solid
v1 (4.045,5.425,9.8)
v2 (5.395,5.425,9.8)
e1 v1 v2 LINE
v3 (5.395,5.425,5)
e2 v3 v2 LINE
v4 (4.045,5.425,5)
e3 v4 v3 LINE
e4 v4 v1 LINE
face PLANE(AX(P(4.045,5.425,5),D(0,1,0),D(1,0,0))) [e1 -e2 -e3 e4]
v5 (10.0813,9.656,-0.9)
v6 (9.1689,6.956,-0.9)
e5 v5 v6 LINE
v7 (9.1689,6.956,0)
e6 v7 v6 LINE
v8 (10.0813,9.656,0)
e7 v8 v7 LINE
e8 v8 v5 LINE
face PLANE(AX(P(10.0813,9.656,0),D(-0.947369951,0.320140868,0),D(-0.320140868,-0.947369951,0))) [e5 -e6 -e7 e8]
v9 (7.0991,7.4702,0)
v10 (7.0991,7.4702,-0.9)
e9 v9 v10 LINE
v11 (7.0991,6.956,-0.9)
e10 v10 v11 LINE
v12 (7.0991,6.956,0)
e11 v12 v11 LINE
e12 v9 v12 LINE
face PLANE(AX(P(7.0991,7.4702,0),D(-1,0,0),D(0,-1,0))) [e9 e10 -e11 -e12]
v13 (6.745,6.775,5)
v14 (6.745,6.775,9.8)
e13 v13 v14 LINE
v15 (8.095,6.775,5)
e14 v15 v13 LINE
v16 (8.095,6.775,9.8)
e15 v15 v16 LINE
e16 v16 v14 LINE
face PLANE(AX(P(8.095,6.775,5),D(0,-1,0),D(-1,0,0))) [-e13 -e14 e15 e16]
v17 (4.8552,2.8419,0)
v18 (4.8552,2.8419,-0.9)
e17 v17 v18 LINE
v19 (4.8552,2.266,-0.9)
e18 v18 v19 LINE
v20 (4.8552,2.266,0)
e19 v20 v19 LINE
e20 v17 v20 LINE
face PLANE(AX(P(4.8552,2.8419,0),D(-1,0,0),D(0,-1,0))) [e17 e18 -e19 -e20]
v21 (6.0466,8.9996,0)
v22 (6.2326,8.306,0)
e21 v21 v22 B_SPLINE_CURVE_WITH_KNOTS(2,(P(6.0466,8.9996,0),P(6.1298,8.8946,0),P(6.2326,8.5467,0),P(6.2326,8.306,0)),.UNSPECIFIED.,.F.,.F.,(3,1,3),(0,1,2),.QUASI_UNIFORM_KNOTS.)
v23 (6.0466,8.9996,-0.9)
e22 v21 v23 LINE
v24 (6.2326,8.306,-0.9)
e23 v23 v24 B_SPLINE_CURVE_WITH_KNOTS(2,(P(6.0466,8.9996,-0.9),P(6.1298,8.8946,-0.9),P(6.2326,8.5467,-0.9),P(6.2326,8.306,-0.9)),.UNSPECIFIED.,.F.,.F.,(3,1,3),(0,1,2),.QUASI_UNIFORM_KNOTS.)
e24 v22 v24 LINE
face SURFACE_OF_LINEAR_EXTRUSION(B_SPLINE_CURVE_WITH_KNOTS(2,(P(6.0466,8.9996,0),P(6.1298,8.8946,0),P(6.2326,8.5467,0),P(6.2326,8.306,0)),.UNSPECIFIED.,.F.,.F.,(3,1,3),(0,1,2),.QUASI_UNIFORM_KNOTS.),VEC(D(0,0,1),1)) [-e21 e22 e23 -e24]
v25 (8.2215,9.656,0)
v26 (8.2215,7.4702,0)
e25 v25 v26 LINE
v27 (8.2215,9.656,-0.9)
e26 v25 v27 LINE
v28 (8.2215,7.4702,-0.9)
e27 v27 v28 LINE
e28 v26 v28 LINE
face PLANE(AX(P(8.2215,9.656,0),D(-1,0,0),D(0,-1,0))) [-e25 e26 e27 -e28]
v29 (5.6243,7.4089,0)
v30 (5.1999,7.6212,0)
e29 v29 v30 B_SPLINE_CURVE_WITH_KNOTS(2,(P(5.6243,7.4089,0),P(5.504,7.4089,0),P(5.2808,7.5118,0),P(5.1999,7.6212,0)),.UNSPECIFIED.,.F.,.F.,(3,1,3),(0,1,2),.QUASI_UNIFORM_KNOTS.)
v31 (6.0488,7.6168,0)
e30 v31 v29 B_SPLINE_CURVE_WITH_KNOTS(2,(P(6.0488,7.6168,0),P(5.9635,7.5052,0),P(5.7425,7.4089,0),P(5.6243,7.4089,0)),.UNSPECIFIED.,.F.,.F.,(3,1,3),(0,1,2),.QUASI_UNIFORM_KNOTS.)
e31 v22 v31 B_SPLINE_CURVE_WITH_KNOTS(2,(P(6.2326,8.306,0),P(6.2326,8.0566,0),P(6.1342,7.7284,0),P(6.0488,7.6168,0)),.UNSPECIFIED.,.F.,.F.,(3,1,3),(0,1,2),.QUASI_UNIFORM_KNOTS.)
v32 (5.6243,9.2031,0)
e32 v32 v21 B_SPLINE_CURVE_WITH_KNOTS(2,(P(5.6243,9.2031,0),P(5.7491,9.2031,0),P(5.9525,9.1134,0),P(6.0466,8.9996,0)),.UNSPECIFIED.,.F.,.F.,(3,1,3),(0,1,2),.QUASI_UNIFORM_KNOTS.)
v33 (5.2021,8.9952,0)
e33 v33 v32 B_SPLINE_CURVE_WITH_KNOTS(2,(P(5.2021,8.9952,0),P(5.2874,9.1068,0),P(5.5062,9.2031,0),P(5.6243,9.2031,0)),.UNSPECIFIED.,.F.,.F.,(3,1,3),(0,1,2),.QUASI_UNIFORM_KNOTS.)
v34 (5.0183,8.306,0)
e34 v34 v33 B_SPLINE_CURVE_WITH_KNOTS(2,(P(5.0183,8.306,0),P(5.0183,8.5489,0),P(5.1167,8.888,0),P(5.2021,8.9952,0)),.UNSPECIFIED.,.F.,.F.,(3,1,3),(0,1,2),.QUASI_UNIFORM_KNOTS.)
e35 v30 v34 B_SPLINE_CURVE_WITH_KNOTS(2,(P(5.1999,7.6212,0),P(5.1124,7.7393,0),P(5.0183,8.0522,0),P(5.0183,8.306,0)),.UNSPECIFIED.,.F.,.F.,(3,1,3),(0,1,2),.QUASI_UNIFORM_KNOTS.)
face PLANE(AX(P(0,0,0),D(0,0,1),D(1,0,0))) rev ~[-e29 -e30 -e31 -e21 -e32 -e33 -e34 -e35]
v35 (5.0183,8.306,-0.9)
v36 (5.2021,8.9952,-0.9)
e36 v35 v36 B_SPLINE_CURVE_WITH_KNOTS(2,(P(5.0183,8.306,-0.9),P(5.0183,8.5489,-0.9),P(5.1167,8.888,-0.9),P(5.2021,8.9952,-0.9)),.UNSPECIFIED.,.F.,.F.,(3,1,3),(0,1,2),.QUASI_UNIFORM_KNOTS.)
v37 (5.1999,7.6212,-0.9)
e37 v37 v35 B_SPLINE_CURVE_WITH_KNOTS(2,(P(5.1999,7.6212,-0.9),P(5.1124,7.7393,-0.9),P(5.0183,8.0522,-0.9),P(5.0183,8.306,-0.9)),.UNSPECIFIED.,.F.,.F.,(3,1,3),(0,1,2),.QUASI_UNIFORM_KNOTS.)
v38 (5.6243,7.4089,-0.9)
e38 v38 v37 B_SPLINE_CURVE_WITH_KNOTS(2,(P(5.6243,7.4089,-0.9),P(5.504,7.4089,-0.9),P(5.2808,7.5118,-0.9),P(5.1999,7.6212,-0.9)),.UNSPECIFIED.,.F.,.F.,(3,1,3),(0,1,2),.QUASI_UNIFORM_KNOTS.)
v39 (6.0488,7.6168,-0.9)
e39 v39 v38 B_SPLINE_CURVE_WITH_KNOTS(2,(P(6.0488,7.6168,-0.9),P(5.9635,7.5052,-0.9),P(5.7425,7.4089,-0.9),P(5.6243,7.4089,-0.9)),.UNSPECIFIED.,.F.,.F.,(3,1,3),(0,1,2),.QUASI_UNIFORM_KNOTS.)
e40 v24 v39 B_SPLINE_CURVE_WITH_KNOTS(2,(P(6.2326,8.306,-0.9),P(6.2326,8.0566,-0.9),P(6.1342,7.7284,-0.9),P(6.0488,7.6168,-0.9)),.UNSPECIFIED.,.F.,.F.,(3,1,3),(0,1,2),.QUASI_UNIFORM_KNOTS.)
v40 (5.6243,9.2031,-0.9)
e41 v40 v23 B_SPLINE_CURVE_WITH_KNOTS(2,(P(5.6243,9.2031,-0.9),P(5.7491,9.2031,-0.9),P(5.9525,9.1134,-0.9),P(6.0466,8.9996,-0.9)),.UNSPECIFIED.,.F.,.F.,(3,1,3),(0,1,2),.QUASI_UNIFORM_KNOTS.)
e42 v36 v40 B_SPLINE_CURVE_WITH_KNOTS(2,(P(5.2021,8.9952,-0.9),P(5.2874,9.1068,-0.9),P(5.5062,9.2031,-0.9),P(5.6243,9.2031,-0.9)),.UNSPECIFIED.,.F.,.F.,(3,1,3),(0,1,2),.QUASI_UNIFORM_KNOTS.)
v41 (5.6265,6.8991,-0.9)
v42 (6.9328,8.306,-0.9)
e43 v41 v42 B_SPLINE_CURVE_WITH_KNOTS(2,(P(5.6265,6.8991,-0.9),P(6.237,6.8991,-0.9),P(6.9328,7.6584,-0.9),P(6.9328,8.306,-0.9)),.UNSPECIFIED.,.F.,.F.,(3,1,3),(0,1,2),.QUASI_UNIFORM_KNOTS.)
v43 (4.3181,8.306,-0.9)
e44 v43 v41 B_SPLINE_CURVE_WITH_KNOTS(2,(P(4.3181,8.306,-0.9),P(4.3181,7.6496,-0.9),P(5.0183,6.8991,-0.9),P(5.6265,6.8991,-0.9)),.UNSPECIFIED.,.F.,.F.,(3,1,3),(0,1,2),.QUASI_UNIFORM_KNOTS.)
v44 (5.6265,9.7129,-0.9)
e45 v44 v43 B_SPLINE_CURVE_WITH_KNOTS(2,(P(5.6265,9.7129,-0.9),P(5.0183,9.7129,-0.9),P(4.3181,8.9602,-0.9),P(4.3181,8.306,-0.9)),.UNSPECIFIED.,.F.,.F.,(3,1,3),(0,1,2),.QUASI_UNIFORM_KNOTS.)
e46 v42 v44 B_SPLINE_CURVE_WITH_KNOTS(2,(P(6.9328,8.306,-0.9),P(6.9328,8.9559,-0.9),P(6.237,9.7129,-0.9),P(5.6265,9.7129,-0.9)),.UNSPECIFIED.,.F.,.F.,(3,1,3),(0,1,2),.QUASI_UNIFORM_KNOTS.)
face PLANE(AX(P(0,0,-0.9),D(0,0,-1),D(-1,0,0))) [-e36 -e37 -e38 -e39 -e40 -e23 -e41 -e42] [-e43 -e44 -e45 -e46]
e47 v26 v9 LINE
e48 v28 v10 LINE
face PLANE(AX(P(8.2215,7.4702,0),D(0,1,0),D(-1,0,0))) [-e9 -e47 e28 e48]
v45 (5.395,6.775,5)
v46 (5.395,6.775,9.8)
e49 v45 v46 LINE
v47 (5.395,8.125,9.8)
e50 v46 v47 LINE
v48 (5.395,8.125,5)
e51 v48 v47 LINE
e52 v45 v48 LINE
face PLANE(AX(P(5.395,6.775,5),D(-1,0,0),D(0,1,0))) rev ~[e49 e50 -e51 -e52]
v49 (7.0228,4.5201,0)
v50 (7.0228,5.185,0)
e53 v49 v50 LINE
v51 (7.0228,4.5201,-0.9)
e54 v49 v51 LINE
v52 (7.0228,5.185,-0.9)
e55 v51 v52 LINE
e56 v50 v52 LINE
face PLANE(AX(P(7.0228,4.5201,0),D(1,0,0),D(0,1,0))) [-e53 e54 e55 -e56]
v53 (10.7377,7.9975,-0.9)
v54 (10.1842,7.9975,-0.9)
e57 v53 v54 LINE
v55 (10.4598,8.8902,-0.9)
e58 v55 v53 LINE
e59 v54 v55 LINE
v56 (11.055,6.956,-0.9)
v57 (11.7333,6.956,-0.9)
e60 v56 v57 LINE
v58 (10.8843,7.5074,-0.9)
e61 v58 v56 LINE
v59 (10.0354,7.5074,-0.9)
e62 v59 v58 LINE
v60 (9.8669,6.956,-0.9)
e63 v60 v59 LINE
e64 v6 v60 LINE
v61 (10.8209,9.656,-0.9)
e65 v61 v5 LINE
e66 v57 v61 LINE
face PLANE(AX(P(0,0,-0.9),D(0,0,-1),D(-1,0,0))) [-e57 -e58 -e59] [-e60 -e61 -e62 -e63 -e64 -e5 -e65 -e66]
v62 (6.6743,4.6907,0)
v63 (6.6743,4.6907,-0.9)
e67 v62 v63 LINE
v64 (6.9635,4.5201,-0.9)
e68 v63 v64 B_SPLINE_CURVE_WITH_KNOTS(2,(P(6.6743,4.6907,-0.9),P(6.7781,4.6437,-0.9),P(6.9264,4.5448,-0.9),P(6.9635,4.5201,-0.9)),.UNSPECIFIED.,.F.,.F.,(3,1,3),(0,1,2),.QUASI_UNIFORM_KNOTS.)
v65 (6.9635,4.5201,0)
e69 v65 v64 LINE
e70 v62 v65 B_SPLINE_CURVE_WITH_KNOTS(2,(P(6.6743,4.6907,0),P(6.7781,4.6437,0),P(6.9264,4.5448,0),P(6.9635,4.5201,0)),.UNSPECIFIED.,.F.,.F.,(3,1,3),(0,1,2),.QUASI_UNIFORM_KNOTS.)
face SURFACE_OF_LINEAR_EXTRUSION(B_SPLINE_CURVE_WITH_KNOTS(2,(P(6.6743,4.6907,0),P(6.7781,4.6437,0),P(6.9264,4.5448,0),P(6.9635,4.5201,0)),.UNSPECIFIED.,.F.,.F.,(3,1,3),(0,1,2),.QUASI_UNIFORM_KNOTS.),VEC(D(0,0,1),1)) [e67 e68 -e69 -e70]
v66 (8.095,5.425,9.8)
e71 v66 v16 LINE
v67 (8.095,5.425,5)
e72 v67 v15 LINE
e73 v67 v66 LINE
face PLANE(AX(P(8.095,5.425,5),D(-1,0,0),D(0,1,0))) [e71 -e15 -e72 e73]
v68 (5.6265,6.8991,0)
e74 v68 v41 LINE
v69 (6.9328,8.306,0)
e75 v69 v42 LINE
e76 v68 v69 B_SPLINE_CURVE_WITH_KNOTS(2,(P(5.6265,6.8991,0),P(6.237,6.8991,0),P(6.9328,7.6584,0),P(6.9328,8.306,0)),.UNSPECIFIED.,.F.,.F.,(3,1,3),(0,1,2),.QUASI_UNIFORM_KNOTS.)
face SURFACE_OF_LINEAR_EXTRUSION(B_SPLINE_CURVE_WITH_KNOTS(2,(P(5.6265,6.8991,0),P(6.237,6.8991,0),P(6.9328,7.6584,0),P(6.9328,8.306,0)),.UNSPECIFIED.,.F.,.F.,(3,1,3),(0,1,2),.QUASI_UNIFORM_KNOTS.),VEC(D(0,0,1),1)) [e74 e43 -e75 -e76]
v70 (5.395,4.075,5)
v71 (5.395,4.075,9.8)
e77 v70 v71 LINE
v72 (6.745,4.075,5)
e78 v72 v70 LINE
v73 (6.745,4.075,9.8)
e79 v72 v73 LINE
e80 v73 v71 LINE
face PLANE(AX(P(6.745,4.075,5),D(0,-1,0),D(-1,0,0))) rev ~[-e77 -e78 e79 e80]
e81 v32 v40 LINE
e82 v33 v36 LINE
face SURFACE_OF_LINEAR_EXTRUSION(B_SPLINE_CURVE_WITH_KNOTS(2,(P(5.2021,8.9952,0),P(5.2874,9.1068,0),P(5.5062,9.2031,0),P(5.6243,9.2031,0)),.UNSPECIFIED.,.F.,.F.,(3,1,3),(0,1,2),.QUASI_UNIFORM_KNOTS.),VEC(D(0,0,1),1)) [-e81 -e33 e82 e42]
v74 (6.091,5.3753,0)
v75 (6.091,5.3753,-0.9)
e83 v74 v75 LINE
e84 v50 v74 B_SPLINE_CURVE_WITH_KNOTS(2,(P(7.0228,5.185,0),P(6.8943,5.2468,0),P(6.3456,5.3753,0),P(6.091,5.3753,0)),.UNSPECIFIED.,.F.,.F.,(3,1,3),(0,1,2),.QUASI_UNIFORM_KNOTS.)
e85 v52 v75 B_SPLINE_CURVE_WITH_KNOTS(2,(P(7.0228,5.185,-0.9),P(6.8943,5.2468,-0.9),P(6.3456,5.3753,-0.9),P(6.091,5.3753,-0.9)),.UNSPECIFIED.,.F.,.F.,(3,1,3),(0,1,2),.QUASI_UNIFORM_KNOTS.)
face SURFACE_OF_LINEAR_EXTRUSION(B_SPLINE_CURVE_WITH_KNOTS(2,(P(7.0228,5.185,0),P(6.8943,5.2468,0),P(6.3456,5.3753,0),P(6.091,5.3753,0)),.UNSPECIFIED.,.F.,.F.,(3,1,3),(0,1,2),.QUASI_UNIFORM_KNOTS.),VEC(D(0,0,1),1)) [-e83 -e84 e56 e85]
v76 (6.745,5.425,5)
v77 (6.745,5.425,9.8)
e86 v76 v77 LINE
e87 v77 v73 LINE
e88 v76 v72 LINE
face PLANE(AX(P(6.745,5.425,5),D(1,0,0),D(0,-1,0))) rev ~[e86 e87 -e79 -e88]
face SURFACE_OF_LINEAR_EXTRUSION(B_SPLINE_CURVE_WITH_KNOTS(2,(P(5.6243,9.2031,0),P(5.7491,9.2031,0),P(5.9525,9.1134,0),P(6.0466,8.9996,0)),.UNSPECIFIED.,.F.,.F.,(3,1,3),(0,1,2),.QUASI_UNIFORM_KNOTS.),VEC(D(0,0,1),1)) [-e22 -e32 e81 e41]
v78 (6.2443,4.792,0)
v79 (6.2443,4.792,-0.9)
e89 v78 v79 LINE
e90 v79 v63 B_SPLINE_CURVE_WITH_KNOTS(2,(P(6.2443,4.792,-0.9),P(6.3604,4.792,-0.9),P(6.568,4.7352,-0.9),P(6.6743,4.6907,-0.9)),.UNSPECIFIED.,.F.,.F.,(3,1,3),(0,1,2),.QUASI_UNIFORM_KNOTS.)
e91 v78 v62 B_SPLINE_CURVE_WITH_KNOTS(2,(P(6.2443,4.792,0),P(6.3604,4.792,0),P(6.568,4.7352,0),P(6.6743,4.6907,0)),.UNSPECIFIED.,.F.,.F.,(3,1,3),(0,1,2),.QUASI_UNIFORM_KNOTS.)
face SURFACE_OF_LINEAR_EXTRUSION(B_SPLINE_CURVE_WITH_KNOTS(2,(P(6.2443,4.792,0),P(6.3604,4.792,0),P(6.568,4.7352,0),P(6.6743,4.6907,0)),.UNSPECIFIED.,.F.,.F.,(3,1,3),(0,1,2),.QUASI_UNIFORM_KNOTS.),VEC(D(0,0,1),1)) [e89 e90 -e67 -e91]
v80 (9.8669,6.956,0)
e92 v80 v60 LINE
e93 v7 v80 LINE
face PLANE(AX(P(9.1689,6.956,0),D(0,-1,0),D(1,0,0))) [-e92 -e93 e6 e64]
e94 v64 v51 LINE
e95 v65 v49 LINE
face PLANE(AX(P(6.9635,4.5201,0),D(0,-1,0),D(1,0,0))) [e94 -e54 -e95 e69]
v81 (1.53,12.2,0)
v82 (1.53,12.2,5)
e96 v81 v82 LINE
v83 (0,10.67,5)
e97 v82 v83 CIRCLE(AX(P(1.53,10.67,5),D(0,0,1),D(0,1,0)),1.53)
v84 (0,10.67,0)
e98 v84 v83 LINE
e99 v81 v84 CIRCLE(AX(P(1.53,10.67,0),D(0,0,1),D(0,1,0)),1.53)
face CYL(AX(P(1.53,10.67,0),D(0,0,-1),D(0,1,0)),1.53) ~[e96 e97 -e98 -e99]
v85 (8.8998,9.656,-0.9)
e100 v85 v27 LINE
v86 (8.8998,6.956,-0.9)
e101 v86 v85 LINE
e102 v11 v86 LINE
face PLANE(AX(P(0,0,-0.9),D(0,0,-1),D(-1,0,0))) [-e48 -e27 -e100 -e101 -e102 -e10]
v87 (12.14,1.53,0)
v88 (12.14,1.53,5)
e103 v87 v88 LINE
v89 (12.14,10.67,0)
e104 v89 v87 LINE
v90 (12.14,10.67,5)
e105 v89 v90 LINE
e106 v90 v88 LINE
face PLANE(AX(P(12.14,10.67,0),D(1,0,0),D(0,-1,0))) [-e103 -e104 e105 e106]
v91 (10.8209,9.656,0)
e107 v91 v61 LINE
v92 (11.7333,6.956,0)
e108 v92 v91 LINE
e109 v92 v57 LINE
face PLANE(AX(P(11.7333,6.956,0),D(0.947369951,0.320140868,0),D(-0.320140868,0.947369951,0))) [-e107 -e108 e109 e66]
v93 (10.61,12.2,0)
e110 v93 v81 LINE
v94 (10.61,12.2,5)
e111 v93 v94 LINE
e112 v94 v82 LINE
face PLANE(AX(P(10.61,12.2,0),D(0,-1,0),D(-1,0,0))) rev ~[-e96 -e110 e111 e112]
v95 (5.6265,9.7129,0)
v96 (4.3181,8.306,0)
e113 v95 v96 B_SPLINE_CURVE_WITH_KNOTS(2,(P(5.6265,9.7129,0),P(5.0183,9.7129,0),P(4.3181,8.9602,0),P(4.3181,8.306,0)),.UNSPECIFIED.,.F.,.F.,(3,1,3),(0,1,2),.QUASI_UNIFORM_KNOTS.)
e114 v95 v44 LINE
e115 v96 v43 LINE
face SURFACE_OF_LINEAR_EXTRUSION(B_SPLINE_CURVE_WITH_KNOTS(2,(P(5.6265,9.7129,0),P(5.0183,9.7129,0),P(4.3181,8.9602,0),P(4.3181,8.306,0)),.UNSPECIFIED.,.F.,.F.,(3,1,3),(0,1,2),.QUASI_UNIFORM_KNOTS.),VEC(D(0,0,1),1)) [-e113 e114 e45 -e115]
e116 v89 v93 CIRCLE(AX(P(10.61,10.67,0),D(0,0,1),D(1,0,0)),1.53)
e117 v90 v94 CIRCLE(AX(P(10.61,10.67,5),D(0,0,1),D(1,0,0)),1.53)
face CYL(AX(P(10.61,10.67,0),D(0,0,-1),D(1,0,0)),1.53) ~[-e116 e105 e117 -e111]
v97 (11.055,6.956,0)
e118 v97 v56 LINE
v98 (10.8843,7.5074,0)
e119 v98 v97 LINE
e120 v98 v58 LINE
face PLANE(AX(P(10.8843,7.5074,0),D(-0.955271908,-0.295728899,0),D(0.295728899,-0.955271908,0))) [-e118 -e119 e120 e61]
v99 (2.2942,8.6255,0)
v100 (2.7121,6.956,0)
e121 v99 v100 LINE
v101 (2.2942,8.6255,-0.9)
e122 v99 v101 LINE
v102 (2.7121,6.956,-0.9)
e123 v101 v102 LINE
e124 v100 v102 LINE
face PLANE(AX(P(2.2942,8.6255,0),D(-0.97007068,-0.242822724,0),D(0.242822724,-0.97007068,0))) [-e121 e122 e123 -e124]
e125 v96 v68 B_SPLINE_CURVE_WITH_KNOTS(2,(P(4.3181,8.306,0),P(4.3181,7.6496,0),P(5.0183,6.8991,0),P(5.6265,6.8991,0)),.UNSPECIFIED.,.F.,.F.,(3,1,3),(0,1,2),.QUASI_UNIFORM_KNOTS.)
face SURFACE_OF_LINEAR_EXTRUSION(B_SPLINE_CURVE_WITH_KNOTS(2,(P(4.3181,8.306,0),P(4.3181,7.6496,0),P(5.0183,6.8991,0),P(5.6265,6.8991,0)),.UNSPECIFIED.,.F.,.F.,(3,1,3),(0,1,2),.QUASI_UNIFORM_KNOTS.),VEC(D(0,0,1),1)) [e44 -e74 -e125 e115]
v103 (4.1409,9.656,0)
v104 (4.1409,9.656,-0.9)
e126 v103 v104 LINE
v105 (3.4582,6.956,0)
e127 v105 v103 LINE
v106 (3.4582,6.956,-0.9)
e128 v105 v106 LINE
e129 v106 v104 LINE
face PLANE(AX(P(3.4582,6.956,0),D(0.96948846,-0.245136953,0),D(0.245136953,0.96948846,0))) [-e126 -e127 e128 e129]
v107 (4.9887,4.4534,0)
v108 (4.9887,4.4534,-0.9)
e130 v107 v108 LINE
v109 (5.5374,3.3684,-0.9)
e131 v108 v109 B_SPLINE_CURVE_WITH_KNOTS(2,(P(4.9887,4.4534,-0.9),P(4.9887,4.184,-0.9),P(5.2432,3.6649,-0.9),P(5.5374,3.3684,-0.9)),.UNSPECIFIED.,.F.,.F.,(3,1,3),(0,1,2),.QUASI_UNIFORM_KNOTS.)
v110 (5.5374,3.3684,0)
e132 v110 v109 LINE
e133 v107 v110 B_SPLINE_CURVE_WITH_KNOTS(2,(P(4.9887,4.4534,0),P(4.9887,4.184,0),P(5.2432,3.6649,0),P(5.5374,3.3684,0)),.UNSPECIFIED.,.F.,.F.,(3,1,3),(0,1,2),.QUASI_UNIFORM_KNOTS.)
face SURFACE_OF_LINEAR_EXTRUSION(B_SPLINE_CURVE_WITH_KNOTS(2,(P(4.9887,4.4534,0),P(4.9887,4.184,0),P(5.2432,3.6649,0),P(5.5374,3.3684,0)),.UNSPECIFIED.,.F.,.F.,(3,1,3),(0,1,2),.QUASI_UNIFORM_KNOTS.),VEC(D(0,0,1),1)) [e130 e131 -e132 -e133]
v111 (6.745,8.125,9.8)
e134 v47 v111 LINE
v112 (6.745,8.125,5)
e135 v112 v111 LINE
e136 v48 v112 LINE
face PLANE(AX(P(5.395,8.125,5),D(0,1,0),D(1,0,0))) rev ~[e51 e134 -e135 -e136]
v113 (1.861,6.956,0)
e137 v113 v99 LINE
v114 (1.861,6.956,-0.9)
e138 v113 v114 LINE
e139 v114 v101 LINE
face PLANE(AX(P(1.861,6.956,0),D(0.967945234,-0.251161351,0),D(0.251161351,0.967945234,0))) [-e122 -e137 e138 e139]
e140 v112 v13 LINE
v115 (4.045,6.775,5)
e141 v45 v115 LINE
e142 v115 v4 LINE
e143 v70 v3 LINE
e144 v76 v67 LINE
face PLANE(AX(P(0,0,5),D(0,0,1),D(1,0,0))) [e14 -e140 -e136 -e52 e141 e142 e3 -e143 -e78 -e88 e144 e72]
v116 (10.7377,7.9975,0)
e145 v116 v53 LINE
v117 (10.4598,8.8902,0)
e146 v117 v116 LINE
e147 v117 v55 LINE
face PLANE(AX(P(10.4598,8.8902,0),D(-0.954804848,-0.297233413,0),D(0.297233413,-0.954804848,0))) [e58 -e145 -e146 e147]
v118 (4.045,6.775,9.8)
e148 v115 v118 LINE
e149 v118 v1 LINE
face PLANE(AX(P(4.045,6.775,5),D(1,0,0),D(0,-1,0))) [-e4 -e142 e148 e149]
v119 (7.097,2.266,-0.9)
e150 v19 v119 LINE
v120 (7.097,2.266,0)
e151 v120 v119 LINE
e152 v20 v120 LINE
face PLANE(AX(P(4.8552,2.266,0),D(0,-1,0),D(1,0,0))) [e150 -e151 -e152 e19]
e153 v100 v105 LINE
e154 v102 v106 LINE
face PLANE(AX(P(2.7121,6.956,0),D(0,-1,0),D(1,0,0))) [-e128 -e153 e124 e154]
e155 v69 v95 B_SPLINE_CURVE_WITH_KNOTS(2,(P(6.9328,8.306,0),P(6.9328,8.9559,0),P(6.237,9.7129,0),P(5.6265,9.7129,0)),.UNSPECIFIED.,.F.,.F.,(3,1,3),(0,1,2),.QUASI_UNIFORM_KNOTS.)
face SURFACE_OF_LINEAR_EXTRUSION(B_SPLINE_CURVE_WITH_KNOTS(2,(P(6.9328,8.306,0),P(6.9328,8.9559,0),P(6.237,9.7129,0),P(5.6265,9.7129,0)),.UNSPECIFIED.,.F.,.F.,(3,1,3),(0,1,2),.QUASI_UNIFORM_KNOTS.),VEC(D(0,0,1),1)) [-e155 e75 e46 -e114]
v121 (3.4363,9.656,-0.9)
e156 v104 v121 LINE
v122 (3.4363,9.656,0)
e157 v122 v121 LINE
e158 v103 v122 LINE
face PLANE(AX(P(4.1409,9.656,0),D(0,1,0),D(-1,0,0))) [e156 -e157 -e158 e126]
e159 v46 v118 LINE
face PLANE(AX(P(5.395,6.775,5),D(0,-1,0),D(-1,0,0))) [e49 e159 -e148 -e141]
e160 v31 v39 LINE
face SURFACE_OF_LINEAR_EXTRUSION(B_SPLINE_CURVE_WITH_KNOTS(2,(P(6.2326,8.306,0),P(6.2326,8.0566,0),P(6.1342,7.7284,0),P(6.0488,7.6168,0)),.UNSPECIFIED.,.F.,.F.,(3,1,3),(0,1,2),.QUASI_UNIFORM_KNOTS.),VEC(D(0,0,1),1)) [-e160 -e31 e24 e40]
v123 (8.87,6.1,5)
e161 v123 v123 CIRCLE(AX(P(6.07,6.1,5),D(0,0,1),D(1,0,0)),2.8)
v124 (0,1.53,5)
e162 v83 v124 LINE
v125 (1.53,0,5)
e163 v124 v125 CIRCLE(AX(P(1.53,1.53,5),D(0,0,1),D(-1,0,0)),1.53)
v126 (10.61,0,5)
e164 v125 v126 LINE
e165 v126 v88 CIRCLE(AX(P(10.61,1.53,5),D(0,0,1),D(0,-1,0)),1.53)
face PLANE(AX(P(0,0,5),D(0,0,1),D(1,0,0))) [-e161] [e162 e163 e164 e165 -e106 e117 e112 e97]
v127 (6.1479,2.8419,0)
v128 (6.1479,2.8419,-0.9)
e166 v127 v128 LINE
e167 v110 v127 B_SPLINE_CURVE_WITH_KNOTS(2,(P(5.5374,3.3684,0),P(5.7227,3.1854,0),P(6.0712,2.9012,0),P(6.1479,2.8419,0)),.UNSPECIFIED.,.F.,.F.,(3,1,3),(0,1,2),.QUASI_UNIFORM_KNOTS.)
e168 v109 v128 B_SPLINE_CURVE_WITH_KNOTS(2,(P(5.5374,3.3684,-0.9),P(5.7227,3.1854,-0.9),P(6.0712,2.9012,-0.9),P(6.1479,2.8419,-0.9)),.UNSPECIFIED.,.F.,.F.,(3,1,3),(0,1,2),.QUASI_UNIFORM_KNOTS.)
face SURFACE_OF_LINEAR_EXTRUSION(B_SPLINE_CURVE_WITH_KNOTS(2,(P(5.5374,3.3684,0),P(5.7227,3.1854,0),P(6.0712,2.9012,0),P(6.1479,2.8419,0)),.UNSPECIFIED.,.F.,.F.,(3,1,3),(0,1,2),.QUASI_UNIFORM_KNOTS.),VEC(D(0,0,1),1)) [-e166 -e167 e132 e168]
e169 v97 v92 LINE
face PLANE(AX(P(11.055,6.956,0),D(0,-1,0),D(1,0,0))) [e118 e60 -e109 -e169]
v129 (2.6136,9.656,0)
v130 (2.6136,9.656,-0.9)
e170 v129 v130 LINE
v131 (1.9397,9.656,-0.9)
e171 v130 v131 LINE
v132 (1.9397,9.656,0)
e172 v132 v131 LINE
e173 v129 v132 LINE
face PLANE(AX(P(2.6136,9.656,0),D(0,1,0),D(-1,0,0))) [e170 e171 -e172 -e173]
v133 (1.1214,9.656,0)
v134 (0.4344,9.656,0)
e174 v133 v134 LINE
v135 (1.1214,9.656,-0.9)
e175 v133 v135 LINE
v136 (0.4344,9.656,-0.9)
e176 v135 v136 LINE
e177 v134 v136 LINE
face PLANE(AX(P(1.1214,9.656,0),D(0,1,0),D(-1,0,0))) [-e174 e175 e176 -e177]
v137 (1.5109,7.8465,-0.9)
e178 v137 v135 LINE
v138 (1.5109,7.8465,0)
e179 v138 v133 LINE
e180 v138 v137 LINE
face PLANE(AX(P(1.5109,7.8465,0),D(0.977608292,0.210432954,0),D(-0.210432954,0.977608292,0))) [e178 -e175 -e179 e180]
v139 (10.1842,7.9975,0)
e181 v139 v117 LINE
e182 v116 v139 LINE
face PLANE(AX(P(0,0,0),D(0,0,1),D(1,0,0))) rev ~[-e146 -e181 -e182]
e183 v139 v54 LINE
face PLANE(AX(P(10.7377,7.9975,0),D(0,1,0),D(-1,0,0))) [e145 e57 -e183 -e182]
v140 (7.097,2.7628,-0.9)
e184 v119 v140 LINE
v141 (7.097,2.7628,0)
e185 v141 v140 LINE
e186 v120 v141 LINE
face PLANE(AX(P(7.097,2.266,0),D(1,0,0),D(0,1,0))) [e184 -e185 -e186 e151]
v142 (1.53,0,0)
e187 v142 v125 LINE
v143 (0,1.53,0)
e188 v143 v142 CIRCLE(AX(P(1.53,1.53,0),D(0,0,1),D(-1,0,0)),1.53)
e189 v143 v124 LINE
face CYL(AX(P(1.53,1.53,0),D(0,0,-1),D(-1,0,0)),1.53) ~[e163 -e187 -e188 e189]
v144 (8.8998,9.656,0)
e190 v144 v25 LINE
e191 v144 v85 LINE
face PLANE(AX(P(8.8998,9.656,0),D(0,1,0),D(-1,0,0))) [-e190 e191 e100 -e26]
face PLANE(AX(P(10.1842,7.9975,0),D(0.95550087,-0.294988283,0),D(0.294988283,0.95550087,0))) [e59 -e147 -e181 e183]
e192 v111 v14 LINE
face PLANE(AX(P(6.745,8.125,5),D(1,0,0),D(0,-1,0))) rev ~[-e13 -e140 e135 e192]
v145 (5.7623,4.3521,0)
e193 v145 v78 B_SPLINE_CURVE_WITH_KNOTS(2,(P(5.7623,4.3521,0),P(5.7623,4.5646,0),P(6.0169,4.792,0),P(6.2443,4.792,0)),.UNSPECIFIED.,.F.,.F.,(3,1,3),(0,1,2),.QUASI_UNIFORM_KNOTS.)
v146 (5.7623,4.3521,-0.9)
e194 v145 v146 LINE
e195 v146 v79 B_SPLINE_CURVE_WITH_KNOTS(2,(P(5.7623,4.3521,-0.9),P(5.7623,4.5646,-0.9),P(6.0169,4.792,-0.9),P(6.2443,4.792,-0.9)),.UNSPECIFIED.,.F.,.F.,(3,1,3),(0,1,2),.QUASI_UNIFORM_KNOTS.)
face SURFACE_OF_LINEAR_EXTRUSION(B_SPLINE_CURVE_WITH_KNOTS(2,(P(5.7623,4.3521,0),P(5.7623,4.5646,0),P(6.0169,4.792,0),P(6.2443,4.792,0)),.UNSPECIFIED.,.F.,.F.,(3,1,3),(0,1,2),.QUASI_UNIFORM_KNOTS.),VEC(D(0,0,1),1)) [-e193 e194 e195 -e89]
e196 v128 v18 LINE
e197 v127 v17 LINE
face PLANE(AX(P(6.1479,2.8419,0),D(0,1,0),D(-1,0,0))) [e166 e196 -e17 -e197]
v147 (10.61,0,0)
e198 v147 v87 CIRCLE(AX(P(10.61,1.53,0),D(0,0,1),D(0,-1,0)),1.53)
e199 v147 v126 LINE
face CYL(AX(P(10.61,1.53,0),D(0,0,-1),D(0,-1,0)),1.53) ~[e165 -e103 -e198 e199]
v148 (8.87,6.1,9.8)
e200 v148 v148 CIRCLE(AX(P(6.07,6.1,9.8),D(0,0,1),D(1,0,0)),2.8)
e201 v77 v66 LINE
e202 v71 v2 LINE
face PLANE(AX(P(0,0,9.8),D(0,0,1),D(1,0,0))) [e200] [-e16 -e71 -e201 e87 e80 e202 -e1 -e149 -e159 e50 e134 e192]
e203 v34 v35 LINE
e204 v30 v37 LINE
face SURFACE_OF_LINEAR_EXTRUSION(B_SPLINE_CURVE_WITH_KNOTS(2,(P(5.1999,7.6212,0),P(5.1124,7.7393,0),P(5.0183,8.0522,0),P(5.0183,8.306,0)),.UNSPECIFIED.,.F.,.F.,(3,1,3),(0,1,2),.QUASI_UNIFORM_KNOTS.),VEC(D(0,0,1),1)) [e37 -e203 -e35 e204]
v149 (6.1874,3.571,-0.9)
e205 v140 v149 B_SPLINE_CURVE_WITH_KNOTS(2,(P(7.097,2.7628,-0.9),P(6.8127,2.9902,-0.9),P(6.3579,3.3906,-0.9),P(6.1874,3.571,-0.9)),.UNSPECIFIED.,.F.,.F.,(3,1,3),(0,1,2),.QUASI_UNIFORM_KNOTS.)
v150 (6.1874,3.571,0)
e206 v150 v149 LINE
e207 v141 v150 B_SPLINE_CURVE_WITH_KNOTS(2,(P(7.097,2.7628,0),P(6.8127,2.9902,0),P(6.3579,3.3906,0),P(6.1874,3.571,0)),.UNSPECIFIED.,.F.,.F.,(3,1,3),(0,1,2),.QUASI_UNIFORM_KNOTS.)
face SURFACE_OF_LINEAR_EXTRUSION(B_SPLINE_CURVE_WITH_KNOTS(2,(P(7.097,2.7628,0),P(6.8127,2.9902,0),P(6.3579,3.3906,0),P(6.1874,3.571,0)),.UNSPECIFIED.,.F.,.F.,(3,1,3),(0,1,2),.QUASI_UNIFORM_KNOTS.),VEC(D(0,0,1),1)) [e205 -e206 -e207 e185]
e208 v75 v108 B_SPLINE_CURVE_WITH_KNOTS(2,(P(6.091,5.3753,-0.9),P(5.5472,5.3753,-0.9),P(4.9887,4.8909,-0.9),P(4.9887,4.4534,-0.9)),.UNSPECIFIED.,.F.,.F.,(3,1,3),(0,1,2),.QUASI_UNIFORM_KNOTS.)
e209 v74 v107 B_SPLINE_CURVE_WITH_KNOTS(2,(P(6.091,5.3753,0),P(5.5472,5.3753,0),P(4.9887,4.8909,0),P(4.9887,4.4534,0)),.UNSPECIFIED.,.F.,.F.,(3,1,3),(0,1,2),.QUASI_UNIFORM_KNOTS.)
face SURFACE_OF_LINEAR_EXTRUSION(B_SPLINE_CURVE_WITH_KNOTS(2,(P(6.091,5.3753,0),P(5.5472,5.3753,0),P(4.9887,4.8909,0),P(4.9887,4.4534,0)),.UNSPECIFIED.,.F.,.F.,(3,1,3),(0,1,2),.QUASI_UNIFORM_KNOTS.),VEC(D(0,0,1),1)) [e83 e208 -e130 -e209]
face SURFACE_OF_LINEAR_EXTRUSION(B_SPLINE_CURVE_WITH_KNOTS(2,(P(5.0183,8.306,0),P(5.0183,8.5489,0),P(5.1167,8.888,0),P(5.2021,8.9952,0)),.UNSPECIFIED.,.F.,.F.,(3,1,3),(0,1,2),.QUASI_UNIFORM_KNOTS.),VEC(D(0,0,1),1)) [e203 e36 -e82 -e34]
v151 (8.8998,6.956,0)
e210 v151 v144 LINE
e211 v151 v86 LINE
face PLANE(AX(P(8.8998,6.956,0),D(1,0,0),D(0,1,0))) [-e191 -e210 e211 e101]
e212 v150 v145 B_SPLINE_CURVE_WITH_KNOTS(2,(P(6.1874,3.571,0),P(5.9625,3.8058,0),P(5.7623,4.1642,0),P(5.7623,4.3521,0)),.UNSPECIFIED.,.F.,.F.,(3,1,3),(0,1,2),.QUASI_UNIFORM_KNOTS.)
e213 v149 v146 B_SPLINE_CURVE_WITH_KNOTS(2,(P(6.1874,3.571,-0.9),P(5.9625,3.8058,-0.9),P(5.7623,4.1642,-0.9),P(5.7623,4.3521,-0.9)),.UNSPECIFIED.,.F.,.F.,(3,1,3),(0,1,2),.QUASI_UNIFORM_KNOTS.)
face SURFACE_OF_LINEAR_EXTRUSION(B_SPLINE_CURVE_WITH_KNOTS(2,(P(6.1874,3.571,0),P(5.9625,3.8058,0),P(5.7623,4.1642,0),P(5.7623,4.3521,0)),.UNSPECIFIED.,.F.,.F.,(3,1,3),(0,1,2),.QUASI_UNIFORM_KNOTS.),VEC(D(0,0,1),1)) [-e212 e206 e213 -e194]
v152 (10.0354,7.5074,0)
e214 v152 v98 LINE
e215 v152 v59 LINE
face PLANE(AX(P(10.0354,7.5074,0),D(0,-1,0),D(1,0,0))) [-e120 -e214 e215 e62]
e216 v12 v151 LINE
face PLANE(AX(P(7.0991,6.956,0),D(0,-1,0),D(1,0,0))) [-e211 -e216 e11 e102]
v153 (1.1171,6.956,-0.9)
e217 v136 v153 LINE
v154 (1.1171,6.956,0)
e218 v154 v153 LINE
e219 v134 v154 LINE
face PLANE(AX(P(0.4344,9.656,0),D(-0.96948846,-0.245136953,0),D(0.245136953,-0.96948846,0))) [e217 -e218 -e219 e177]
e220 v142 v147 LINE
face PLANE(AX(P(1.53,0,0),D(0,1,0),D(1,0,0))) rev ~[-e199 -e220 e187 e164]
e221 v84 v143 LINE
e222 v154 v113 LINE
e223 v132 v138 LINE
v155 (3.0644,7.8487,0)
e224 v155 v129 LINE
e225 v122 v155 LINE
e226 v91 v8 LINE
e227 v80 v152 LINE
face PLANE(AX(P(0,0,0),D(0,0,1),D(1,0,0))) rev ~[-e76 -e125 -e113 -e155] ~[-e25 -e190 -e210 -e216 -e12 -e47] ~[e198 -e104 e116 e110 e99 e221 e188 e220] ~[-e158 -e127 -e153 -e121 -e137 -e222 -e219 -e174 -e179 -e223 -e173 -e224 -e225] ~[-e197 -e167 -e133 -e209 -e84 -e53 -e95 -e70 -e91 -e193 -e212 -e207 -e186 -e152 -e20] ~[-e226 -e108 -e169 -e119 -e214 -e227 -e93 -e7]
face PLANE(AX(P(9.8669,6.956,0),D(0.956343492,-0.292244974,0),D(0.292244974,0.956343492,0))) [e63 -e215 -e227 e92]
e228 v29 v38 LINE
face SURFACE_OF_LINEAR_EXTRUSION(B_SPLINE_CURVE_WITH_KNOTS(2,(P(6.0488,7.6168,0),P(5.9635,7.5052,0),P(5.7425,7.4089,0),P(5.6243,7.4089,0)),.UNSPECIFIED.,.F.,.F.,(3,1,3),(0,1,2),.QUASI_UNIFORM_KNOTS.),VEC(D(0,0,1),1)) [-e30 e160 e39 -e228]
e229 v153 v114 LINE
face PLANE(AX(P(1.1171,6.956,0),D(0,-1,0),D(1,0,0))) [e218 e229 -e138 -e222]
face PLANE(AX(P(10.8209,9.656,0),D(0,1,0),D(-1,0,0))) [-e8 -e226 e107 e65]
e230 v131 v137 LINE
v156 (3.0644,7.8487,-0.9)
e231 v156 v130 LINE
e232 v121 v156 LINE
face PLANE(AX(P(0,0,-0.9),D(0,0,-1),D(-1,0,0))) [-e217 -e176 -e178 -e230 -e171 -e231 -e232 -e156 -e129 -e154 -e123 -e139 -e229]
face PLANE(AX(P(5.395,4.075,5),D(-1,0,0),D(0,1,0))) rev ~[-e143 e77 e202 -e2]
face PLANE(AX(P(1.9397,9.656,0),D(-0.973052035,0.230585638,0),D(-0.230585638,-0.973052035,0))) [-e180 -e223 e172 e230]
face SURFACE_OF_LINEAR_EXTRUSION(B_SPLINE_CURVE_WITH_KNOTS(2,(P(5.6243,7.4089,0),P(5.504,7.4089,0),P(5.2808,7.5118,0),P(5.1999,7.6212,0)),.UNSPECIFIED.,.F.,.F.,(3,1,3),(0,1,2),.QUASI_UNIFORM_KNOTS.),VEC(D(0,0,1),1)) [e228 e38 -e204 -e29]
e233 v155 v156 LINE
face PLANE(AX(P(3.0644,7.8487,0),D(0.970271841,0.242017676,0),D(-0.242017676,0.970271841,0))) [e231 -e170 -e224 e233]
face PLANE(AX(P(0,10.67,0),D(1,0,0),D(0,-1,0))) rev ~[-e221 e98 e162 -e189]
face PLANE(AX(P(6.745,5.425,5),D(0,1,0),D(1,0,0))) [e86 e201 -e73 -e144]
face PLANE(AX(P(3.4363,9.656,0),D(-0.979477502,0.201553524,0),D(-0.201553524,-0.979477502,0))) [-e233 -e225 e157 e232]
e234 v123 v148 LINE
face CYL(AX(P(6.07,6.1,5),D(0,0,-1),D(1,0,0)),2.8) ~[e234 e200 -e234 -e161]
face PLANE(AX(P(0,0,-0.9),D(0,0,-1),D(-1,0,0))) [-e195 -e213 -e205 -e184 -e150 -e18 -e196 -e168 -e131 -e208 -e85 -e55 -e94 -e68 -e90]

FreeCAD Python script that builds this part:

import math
import FreeCAD as App
import Part
import Sketcher

V = App.Vector
Q = App.Units.Quantity

doc = App.newDocument("Part")
params = doc.addObject("Spreadsheet::Sheet", "Params")
for row, (alias, value) in enumerate([
    ("sketch1_radius", "1.53 mm"),
    ("sketch1_width", "9.08 mm"),
    ("sketch1_height", "9.14 mm"),
    ("pad1_length", "5 mm"),
    ("sketch2_diameter", "5.6 mm"),
    ("sketch2_width", "1.35 mm"),
    ("pad2_length", "4.8 mm"),
    ("sketch3_height", "2.7 mm"),
    ("sketch3_length", "2.85 mm"),
    ("pad3_length", "0.9 mm"),
], start=1):
    params.set(f"A{row}", alias)
    params.set(f"B{row}", "=" + value)
    params.setAlias(f"B{row}", alias)

body = doc.addObject("PartDesign::Body", "Body")

sketch1 = body.newObject("Sketcher::SketchObject", "Sketch")
sketch1.AttachmentSupport = (doc.getObject("XY_Plane"), [""])
sketch1.MapMode = "FlatFace"
sketch1.addGeometry([
    Part.ArcOfCircle(Part.Circle(V(10.6, 10.7, 0), V(0, 0, 1), 1.5), math.radians(0), math.radians(90)),
    Part.LineSegment(V(10.6, 12.2, 0), V(1.5, 12.2, 0)),
    Part.ArcOfCircle(Part.Circle(V(1.5, 10.7, 0), V(0, 0, 1), 1.5), math.radians(90), math.radians(180)),
    Part.LineSegment(V(0, 10.7, 0), V(0, 1.5, 0)),
    Part.ArcOfCircle(Part.Circle(V(1.5, 1.5, 0), V(0, 0, 1), 1.5), math.radians(180), math.radians(270)),
    Part.LineSegment(V(1.5, 0, 0), V(10.6, 0, 0)),
    Part.ArcOfCircle(Part.Circle(V(10.6, 1.5, 0), V(0, 0, 1), 1.5), math.radians(-90), math.radians(0)),
    Part.LineSegment(V(12.1, 1.5, 0), V(12.1, 10.7, 0)),
], False)
sketch1.addConstraint([
    Sketcher.Constraint("Tangent", 0, 2, 1, 1),
    Sketcher.Constraint("Tangent", 1, 2, 2, 1),
    Sketcher.Constraint("Tangent", 2, 2, 3, 1),
    Sketcher.Constraint("Tangent", 3, 2, 4, 1),
    Sketcher.Constraint("Tangent", 4, 2, 5, 1),
    Sketcher.Constraint("Tangent", 5, 2, 6, 1),
    Sketcher.Constraint("Tangent", 6, 2, 7, 1),
    Sketcher.Constraint("Tangent", 7, 2, 0, 1),
    Sketcher.Constraint("Horizontal", 1),
    Sketcher.Constraint("Vertical", 3),
    Sketcher.Constraint("Horizontal", 5),
    Sketcher.Constraint("Vertical", 7),
    Sketcher.Constraint("Equal", 0, 2),
    Sketcher.Constraint("Equal", 2, 4),
    Sketcher.Constraint("Equal", 4, 6),
    Sketcher.Constraint("PointOnObject", 2, 2, -2),
    Sketcher.Constraint("PointOnObject", 4, 2, -1),
    Sketcher.Constraint("Radius", 0, Q("1.53 mm")),
    Sketcher.Constraint("DistanceX", 1, 2, 1, 1, Q("9.08 mm")),
    Sketcher.Constraint("DistanceY", 3, 2, 3, 1, Q("9.14 mm")),
])
sketch1.setExpression("Constraints[17]", "Params.sketch1_radius")
sketch1.setExpression("Constraints[18]", "Params.sketch1_width")
sketch1.setExpression("Constraints[19]", "Params.sketch1_height")
pad1 = body.newObject("PartDesign::Pad", "Pad")
pad1.Profile = sketch1
pad1.setExpression("Length", "Params.pad1_length")

sketch2 = body.newObject("Sketcher::SketchObject", "Sketch001")
sketch2.AttachmentSupport = (doc.getObject("XY_Plane"), [""])
sketch2.MapMode = "FlatFace"
sketch2.AttachmentOffset = App.Placement(V(0, 0, 5), App.Rotation())
sketch2.addGeometry([
    Part.Circle(V(6.1, 6.1, 0), V(0, 0, 1), 2.8),
    Part.LineSegment(V(5.4, 6.8, 0), V(5.4, 8.1, 0)),
    Part.LineSegment(V(5.4, 8.1, 0), V(6.7, 8.1, 0)),
    Part.LineSegment(V(6.7, 8.1, 0), V(6.7, 6.8, 0)),
    Part.LineSegment(V(6.7, 6.8, 0), V(8.1, 6.8, 0)),
    Part.LineSegment(V(8.1, 6.8, 0), V(8.1, 5.4, 0)),
    Part.LineSegment(V(8.1, 5.4, 0), V(6.7, 5.4, 0)),
    Part.LineSegment(V(6.7, 5.4, 0), V(6.7, 4.1, 0)),
    Part.LineSegment(V(6.7, 4.1, 0), V(5.4, 4.1, 0)),
    Part.LineSegment(V(5.4, 4.1, 0), V(5.4, 5.4, 0)),
    Part.LineSegment(V(5.4, 5.4, 0), V(4, 5.4, 0)),
    Part.LineSegment(V(4, 5.4, 0), V(4, 6.8, 0)),
    Part.LineSegment(V(4, 6.8, 0), V(5.4, 6.8, 0)),
], False)
sketch2.addConstraint([
    Sketcher.Constraint("Coincident", 1, 2, 2, 1),
    Sketcher.Constraint("Coincident", 2, 2, 3, 1),
    Sketcher.Constraint("Coincident", 3, 2, 4, 1),
    Sketcher.Constraint("Coincident", 4, 2, 5, 1),
    Sketcher.Constraint("Coincident", 5, 2, 6, 1),
    Sketcher.Constraint("Coincident", 6, 2, 7, 1),
    Sketcher.Constraint("Coincident", 7, 2, 8, 1),
    Sketcher.Constraint("Coincident", 8, 2, 9, 1),
    Sketcher.Constraint("Coincident", 9, 2, 10, 1),
    Sketcher.Constraint("Coincident", 10, 2, 11, 1),
    Sketcher.Constraint("Coincident", 11, 2, 12, 1),
    Sketcher.Constraint("Coincident", 12, 2, 1, 1),
    Sketcher.Constraint("Vertical", 1),
    Sketcher.Constraint("Horizontal", 2),
    Sketcher.Constraint("Vertical", 3),
    Sketcher.Constraint("Horizontal", 4),
    Sketcher.Constraint("Vertical", 5),
    Sketcher.Constraint("Horizontal", 6),
    Sketcher.Constraint("Vertical", 7),
    Sketcher.Constraint("Horizontal", 8),
    Sketcher.Constraint("Vertical", 9),
    Sketcher.Constraint("Horizontal", 10),
    Sketcher.Constraint("Vertical", 11),
    Sketcher.Constraint("Horizontal", 12),
    Sketcher.Constraint("Horizontal", 6, 2, 9, 2),
    Sketcher.Constraint("Horizontal", 4, 2, 11, 2),
    Sketcher.Constraint("Vertical", 3, 2, 6, 2),
    Sketcher.Constraint("Vertical", 1, 2, 8, 2),
    Sketcher.Constraint("Equal", 2, 4),
    Sketcher.Constraint("Equal", 8, 10),
    Sketcher.Constraint("Equal", 12, 1),
    Sketcher.Constraint("Equal", 3, 5),
    Sketcher.Constraint("Equal", 5, 7),
    Sketcher.Constraint("Diameter", 0, Q("5.6 mm")),
    Sketcher.Constraint("DistanceX", 2, 1, 2, 2, Q("1.35 mm")),
    Sketcher.Constraint("DistanceY", -1, 1, 0, 3, Q("6.1 mm")),
    Sketcher.Constraint("DistanceX", -1, 1, 0, 3, Q("6.07 mm")),
    Sketcher.Constraint("DistanceX", -1, 1, 1, 2, Q("5.395 mm")),
    Sketcher.Constraint("DistanceY", -1, 1, 1, 2, Q("8.125 mm")),
])
sketch2.setExpression("Constraints[33]", "Params.sketch2_diameter")
sketch2.setExpression("Constraints[34]", "Params.sketch2_width")
pad2 = body.newObject("PartDesign::Pad", "Pad001")
pad2.Profile = sketch2
pad2.setExpression("Length", "Params.pad2_length")

sketch3 = body.newObject("Sketcher::SketchObject", "Sketch002")
sketch3.AttachmentSupport = (doc.getObject("XY_Plane"), [""])
sketch3.MapMode = "FlatFace"
sketch3.addGeometry([
    Part.LineSegment(V(10.8209, 9.656, 0), V(11.7333, 6.956, 0)),
    Part.LineSegment(V(11.7333, 6.956, 0), V(11.055, 6.956, 0)),
    Part.LineSegment(V(11.055, 6.956, 0), V(10.8843, 7.5074, 0)),
    Part.LineSegment(V(10.8843, 7.5074, 0), V(10.0354, 7.5074, 0)),
    Part.LineSegment(V(10.0354, 7.5074, 0), V(9.8669, 6.956, 0)),
    Part.LineSegment(V(9.8669, 6.956, 0), V(9.1689, 6.956, 0)),
    Part.LineSegment(V(9.1689, 6.956, 0), V(10.0813, 9.656, 0)),
    Part.LineSegment(V(10.0813, 9.656, 0), V(10.8209, 9.656, 0)),
    Part.LineSegment(V(10.4598, 8.8902, 0), V(10.1842, 7.9975, 0)),
    Part.LineSegment(V(10.1842, 7.9975, 0), V(10.7377, 7.9975, 0)),
    Part.LineSegment(V(10.7377, 7.9975, 0), V(10.4598, 8.8902, 0)),
    Part.LineSegment(V(8.8998, 6.956, 0), V(7.0991, 6.956, 0)),
    Part.LineSegment(V(7.0991, 6.956, 0), V(7.0991, 7.4702, 0)),
    Part.LineSegment(V(7.0991, 7.4702, 0), V(8.2215, 7.4702, 0)),
    Part.LineSegment(V(8.2215, 7.4702, 0), V(8.2215, 9.656, 0)),
    Part.LineSegment(V(8.2215, 9.656, 0), V(8.8998, 9.656, 0)),
    Part.LineSegment(V(8.8998, 9.656, 0), V(8.8998, 6.956, 0)),
    Part.BSplineCurve([V(4.3181, 8.306, 0), V(4.3181, 7.6496, 0), V(5.0183, 6.8991, 0), V(5.6265, 6.8991, 0)], [3, 1, 3], [0, 1, 2], False, 2, [1, 1, 1, 1], False),
    Part.BSplineCurve([V(5.6265, 9.7129, 0), V(5.0183, 9.7129, 0), V(4.3181, 8.9602, 0), V(4.3181, 8.306, 0)], [3, 1, 3], [0, 1, 2], False, 2, [1, 1, 1, 1], False),
    Part.BSplineCurve([V(6.9328, 8.306, 0), V(6.9328, 8.9559, 0), V(6.237, 9.7129, 0), V(5.6265, 9.7129, 0)], [3, 1, 3], [0, 1, 2], False, 2, [1, 1, 1, 1], False),
    Part.BSplineCurve([V(5.6265, 6.8991, 0), V(6.237, 6.8991, 0), V(6.9328, 7.6584, 0), V(6.9328, 8.306, 0)], [3, 1, 3], [0, 1, 2], False, 2, [1, 1, 1, 1], False),
    Part.BSplineCurve([V(5.0183, 8.306, 0), V(5.0183, 8.5489, 0), V(5.1167, 8.888, 0), V(5.2021, 8.9952, 0)], [3, 1, 3], [0, 1, 2], False, 2, [1, 1, 1, 1], False),
    Part.BSplineCurve([V(5.1999, 7.6212, 0), V(5.1124, 7.7393, 0), V(5.0183, 8.0522, 0), V(5.0183, 8.306, 0)], [3, 1, 3], [0, 1, 2], False, 2, [1, 1, 1, 1], False),
    Part.BSplineCurve([V(5.6243, 7.4089, 0), V(5.504, 7.4089, 0), V(5.2808, 7.5118, 0), V(5.1999, 7.6212, 0)], [3, 1, 3], [0, 1, 2], False, 2, [1, 1, 1, 1], False),
    Part.BSplineCurve([V(6.0488, 7.6168, 0), V(5.9635, 7.5052, 0), V(5.7425, 7.4089, 0), V(5.6243, 7.4089, 0)], [3, 1, 3], [0, 1, 2], False, 2, [1, 1, 1, 1], False),
    Part.BSplineCurve([V(6.2326, 8.306, 0), V(6.2326, 8.0566, 0), V(6.1342, 7.7284, 0), V(6.0488, 7.6168, 0)], [3, 1, 3], [0, 1, 2], False, 2, [1, 1, 1, 1], False),
    Part.BSplineCurve([V(6.0466, 8.9996, 0), V(6.1298, 8.8946, 0), V(6.2326, 8.5467, 0), V(6.2326, 8.306, 0)], [3, 1, 3], [0, 1, 2], False, 2, [1, 1, 1, 1], False),
    Part.BSplineCurve([V(5.6243, 9.2031, 0), V(5.7491, 9.2031, 0), V(5.9525, 9.1134, 0), V(6.0466, 8.9996, 0)], [3, 1, 3], [0, 1, 2], False, 2, [1, 1, 1, 1], False),
    Part.BSplineCurve([V(5.2021, 8.9952, 0), V(5.2874, 9.1068, 0), V(5.5062, 9.2031, 0), V(5.6243, 9.2031, 0)], [3, 1, 3], [0, 1, 2], False, 2, [1, 1, 1, 1], False),
    Part.LineSegment(V(1.1171, 6.956, 0), V(0.4344, 9.656, 0)),
    Part.LineSegment(V(0.4344, 9.656, 0), V(1.1214, 9.656, 0)),
    Part.LineSegment(V(1.1214, 9.656, 0), V(1.5109, 7.8465, 0)),
    Part.LineSegment(V(1.5109, 7.8465, 0), V(1.9397, 9.656, 0)),
    Part.LineSegment(V(1.9397, 9.656, 0), V(2.6136, 9.656, 0)),
    Part.LineSegment(V(2.6136, 9.656, 0), V(3.0644, 7.8487, 0)),
    Part.LineSegment(V(3.0644, 7.8487, 0), V(3.4363, 9.656, 0)),
    Part.LineSegment(V(3.4363, 9.656, 0), V(4.1409, 9.656, 0)),
    Part.LineSegment(V(4.1409, 9.656, 0), V(3.4582, 6.956, 0)),
    Part.LineSegment(V(3.4582, 6.956, 0), V(2.7121, 6.956, 0)),
    Part.LineSegment(V(2.7121, 6.956, 0), V(2.2942, 8.6255, 0)),
    Part.LineSegment(V(2.2942, 8.6255, 0), V(1.861, 6.956, 0)),
    Part.LineSegment(V(1.861, 6.956, 0), V(1.1171, 6.956, 0)),
    Part.LineSegment(V(7.097, 2.266, 0), V(4.8552, 2.266, 0)),
    Part.LineSegment(V(4.8552, 2.266, 0), V(4.8552, 2.8419, 0)),
    Part.LineSegment(V(4.8552, 2.8419, 0), V(6.1479, 2.8419, 0)),
    Part.BSplineCurve([V(5.5374, 3.3684, 0), V(5.7227, 3.1854, 0), V(6.0712, 2.9012, 0), V(6.1479, 2.8419, 0)], [3, 1, 3], [0, 1, 2], False, 2, [1, 1, 1, 1], False),
    Part.BSplineCurve([V(4.9887, 4.4534, 0), V(4.9887, 4.184, 0), V(5.2432, 3.6649, 0), V(5.5374, 3.3684, 0)], [3, 1, 3], [0, 1, 2], False, 2, [1, 1, 1, 1], False),
    Part.BSplineCurve([V(6.091, 5.3753, 0), V(5.5472, 5.3753, 0), V(4.9887, 4.8909, 0), V(4.9887, 4.4534, 0)], [3, 1, 3], [0, 1, 2], False, 2, [1, 1, 1, 1], False),
    Part.BSplineCurve([V(7.0228, 5.185, 0), V(6.8943, 5.2468, 0), V(6.3456, 5.3753, 0), V(6.091, 5.3753, 0)], [3, 1, 3], [0, 1, 2], False, 2, [1, 1, 1, 1], False),
    Part.LineSegment(V(7.0228, 5.185, 0), V(7.0228, 4.5201, 0)),
    Part.LineSegment(V(7.0228, 4.5201, 0), V(6.9635, 4.5201, 0)),
    Part.BSplineCurve([V(6.6743, 4.6907, 0), V(6.7781, 4.6437, 0), V(6.9264, 4.5448, 0), V(6.9635, 4.5201, 0)], [3, 1, 3], [0, 1, 2], False, 2, [1, 1, 1, 1], False),
    Part.BSplineCurve([V(6.2443, 4.792, 0), V(6.3604, 4.792, 0), V(6.568, 4.7352, 0), V(6.6743, 4.6907, 0)], [3, 1, 3], [0, 1, 2], False, 2, [1, 1, 1, 1], False),
    Part.BSplineCurve([V(5.7623, 4.3521, 0), V(5.7623, 4.5646, 0), V(6.0169, 4.792, 0), V(6.2443, 4.792, 0)], [3, 1, 3], [0, 1, 2], False, 2, [1, 1, 1, 1], False),
    Part.BSplineCurve([V(6.1874, 3.571, 0), V(5.9625, 3.8058, 0), V(5.7623, 4.1642, 0), V(5.7623, 4.3521, 0)], [3, 1, 3], [0, 1, 2], False, 2, [1, 1, 1, 1], False),
    Part.BSplineCurve([V(7.097, 2.7628, 0), V(6.8127, 2.9902, 0), V(6.3579, 3.3906, 0), V(6.1874, 3.571, 0)], [3, 1, 3], [0, 1, 2], False, 2, [1, 1, 1, 1], False),
    Part.LineSegment(V(7.097, 2.7628, 0), V(7.097, 2.266, 0)),
], False)
sketch3.addConstraint([
    Sketcher.Constraint("Block", 17),
    Sketcher.Constraint("Block", 18),
    Sketcher.Constraint("Block", 19),
    Sketcher.Constraint("Block", 20),
    Sketcher.Constraint("Block", 21),
    Sketcher.Constraint("Block", 22),
    Sketcher.Constraint("Block", 23),
    Sketcher.Constraint("Block", 24),
    Sketcher.Constraint("Block", 25),
    Sketcher.Constraint("Block", 26),
    Sketcher.Constraint("Block", 27),
    Sketcher.Constraint("Block", 28),
    Sketcher.Constraint("Block", 45),
    Sketcher.Constraint("Block", 46),
    Sketcher.Constraint("Block", 47),
    Sketcher.Constraint("Block", 48),
    Sketcher.Constraint("Block", 51),
    Sketcher.Constraint("Block", 52),
    Sketcher.Constraint("Block", 53),
    Sketcher.Constraint("Block", 54),
    Sketcher.Constraint("Block", 55),
    Sketcher.Constraint("Coincident", 0, 2, 1, 1),
    Sketcher.Constraint("Coincident", 1, 2, 2, 1),
    Sketcher.Constraint("Coincident", 2, 2, 3, 1),
    Sketcher.Constraint("Coincident", 3, 2, 4, 1),
    Sketcher.Constraint("Coincident", 4, 2, 5, 1),
    Sketcher.Constraint("Coincident", 5, 2, 6, 1),
    Sketcher.Constraint("Coincident", 6, 2, 7, 1),
    Sketcher.Constraint("Coincident", 7, 2, 0, 1),
    Sketcher.Constraint("Coincident", 8, 2, 9, 1),
    Sketcher.Constraint("Coincident", 9, 2, 10, 1),
    Sketcher.Constraint("Coincident", 10, 2, 8, 1),
    Sketcher.Constraint("Coincident", 11, 2, 12, 1),
    Sketcher.Constraint("Coincident", 12, 2, 13, 1),
    Sketcher.Constraint("Coincident", 13, 2, 14, 1),
    Sketcher.Constraint("Coincident", 14, 2, 15, 1),
    Sketcher.Constraint("Coincident", 15, 2, 16, 1),
    Sketcher.Constraint("Coincident", 16, 2, 11, 1),
    Sketcher.Constraint("Coincident", 29, 2, 30, 1),
    Sketcher.Constraint("Coincident", 30, 2, 31, 1),
    Sketcher.Constraint("Coincident", 31, 2, 32, 1),
    Sketcher.Constraint("Coincident", 32, 2, 33, 1),
    Sketcher.Constraint("Coincident", 33, 2, 34, 1),
    Sketcher.Constraint("Coincident", 34, 2, 35, 1),
    Sketcher.Constraint("Coincident", 35, 2, 36, 1),
    Sketcher.Constraint("Coincident", 36, 2, 37, 1),
    Sketcher.Constraint("Coincident", 37, 2, 38, 1),
    Sketcher.Constraint("Coincident", 38, 2, 39, 1),
    Sketcher.Constraint("Coincident", 39, 2, 40, 1),
    Sketcher.Constraint("Coincident", 40, 2, 41, 1),
    Sketcher.Constraint("Coincident", 41, 2, 29, 1),
    Sketcher.Constraint("Coincident", 42, 2, 43, 1),
    Sketcher.Constraint("Coincident", 43, 2, 44, 1),
    Sketcher.Constraint("Coincident", 44, 2, 45, 2),
    Sketcher.Constraint("Coincident", 48, 1, 49, 1),
    Sketcher.Constraint("Coincident", 49, 2, 50, 1),
    Sketcher.Constraint("Coincident", 50, 2, 51, 2),
    Sketcher.Constraint("Coincident", 55, 1, 56, 1),
    Sketcher.Constraint("Coincident", 56, 2, 42, 1),
    Sketcher.Constraint("Horizontal", 1),
    Sketcher.Constraint("Horizontal", 3),
    Sketcher.Constraint("Horizontal", 5),
    Sketcher.Constraint("Horizontal", 7),
    Sketcher.Constraint("Horizontal", 9),
    Sketcher.Constraint("Horizontal", 11),
    Sketcher.Constraint("Vertical", 12),
    Sketcher.Constraint("Horizontal", 13),
    Sketcher.Constraint("Vertical", 14),
    Sketcher.Constraint("Horizontal", 15),
    Sketcher.Constraint("Vertical", 16),
    Sketcher.Constraint("Horizontal", 30),
    Sketcher.Constraint("Horizontal", 33),
    Sketcher.Constraint("Horizontal", 36),
    Sketcher.Constraint("Horizontal", 38),
    Sketcher.Constraint("Horizontal", 41),
    Sketcher.Constraint("Horizontal", 42),
    Sketcher.Constraint("Vertical", 43),
    Sketcher.Constraint("Horizontal", 44),
    Sketcher.Constraint("Vertical", 49),
    Sketcher.Constraint("Horizontal", 50),
    Sketcher.Constraint("Vertical", 56),
    Sketcher.Constraint("Horizontal", 1, 2, 4, 2),
    Sketcher.Constraint("Horizontal", 5, 2, 11, 2),
    Sketcher.Constraint("Horizontal", 7, 2, 14, 2),
    Sketcher.Constraint("Horizontal", 15, 2, 29, 2),
    Sketcher.Constraint("Horizontal", 30, 2, 32, 2),
    Sketcher.Constraint("Horizontal", 33, 2, 35, 2),
    Sketcher.Constraint("Horizontal", 16, 2, 37, 2),
    Sketcher.Constraint("Horizontal", 38, 2, 40, 2),
    Sketcher.Constraint("Equal", 1, 15),
    Sketcher.Constraint("Equal", 0, 6),
    Sketcher.Constraint("Equal", 29, 37),
    Sketcher.Constraint("DistanceY", 16, 2, 16, 1, Q("2.7 mm")),
    Sketcher.Constraint("Angle", 29, Q("104.19 deg")),
    Sketcher.Constraint("DistanceX", 8, 2, 2, 2, Q("0.7 mm")),
    Sketcher.Constraint("DistanceX", 30, 2, 14, 2, Q("7.1 mm")),
    Sketcher.Constraint("Distance", 0, Q("2.85 mm")),
    Sketcher.Constraint("DistanceX", 3, 2, 3, 1, Q("0.849 mm")),
    Sketcher.Constraint("DistanceX", 5, 2, 5, 1, Q("0.698 mm")),
    Sketcher.Constraint("DistanceX", 30, 1, 30, 2, Q("0.687 mm")),
    Sketcher.Constraint("DistanceX", 33, 1, 33, 2, Q("0.674 mm")),
    Sketcher.Constraint("DistanceX", 38, 2, 38, 1, Q("0.746 mm")),
    Sketcher.Constraint("DistanceX", 41, 2, 41, 1, Q("0.744 mm")),
    Sketcher.Constraint("DistanceY", 43, 1, 43, 2, Q("0.576 mm")),
    Sketcher.Constraint("DistanceY", 3, 2, 8, 2, Q("0.49 mm")),
    Sketcher.Constraint("DistanceX", 15, 2, 10, 2, Q("1.56 mm")),
    Sketcher.Constraint("DistanceX", 29, 2, 34, 2, Q("2.63 mm")),
    Sketcher.Constraint("DistanceX", 31, 2, 40, 2, Q("0.35 mm")),
    Sketcher.Constraint("DistanceY", 42, 2, 37, 2, Q("4.69 mm")),
    Sketcher.Constraint("DistanceY", 49, 2, 12, 2, Q("2.95 mm")),
    Sketcher.Constraint("Distance", 10, Q("0.935 mm")),
    Sketcher.Constraint("Distance", 31, Q("1.851 mm")),
    Sketcher.Constraint("Distance", 39, Q("1.721 mm")),
    Sketcher.Constraint("DistanceX", 1, 2, 1, 1, Q("0.6783 mm")),
    Sketcher.Constraint("DistanceX", 7, 1, 7, 2, Q("0.7396 mm")),
    Sketcher.Constraint("DistanceX", 9, 1, 9, 2, Q("0.5535 mm")),
    Sketcher.Constraint("DistanceX", 11, 2, 11, 1, Q("1.8007 mm")),
    Sketcher.Constraint("DistanceX", 36, 1, 36, 2, Q("0.7046 mm")),
    Sketcher.Constraint("DistanceX", 42, 2, 42, 1, Q("2.2418 mm")),
    Sketcher.Constraint("DistanceX", -1, 1, 1, 2, Q("11.055 mm")),
    Sketcher.Constraint("DistanceX", -1, 1, 11, 2, Q("7.099 mm")),
    Sketcher.Constraint("DistanceX", -1, 1, 36, 2, Q("4.141 mm")),
    Sketcher.Constraint("DistanceX", 2, 2, 0, 2, Q("0.849 mm")),
    Sketcher.Constraint("DistanceY", 31, 2, 39, 2, Q("0.779 mm")),
    Sketcher.Constraint("Distance", 2, Q("0.5772 mm")),
    Sketcher.Constraint("Distance", 32, Q("1.8596 mm")),
    Sketcher.Constraint("Distance", 34, Q("1.8627 mm")),
])
sketch3.setExpression("Constraints[92]", "Params.sketch3_height")
sketch3.setExpression("Constraints[96]", "Params.sketch3_length")
pad3 = body.newObject("PartDesign::Pad", "Pad002")
pad3.Profile = sketch3
pad3.setExpression("Length", "Params.pad3_length")
pad3.Reversed = True

doc.recompute()
